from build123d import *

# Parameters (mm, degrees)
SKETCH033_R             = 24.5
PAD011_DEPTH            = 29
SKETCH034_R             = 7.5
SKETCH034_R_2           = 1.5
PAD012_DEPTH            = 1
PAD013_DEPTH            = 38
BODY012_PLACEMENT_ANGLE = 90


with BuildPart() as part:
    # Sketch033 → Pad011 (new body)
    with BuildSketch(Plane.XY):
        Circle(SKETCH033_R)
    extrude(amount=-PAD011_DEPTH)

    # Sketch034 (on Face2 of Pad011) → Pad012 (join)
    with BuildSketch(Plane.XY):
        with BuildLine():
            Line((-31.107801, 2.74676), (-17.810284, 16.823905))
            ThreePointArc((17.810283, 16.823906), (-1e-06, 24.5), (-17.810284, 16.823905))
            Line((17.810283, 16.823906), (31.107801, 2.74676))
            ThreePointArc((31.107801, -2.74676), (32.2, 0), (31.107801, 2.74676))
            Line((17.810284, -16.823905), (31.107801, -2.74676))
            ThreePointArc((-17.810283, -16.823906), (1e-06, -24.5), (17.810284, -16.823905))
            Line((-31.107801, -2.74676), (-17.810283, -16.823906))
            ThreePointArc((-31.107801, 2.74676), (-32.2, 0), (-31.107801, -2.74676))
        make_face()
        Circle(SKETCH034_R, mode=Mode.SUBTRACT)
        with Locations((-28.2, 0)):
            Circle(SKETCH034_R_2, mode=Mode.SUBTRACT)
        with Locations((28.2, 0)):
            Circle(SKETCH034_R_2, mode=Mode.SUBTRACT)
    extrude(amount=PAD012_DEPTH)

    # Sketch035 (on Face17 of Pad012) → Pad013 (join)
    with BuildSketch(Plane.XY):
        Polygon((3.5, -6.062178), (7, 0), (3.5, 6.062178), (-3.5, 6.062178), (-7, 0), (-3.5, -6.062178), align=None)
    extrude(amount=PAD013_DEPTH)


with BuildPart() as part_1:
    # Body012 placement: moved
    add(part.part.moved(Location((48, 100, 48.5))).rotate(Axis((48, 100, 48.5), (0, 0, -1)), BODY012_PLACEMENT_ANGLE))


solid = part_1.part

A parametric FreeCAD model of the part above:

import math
import FreeCAD as App
import Part
import Sketcher
from FreeCAD import Vector
Q = App.Units.Quantity

doc = App.newDocument("Part")
body = doc.addObject("PartDesign::Body", "Body")

sketch1 = doc.addObject("Sketcher::SketchObject", "Sketch")
body.addObject(sketch1)
sketch1.AttachmentSupport = (doc.XY_Plane, [""])
sketch1.MapMode = "FlatFace"
sketch1.addGeometry(Part.Circle(Vector(0, 0, 0), Vector(0, 0, 1), 24), False)
sketch1.addConstraint(Sketcher.Constraint("Coincident", 0, 3, -1, 1))
sketch1.addConstraint(Sketcher.Constraint("Diameter", 0, 49.0))
pad1 = doc.addObject("PartDesign::Pad", "Pad")
body.addObject(pad1)
pad1.Profile = sketch1
pad1.Length = 29
pad1.Reversed = True

sketch2 = doc.addObject("Sketcher::SketchObject", "Sketch001")
body.addObject(sketch2)
sketch2.AttachmentSupport = (doc.XY_Plane, [""])
sketch2.MapMode = "FlatFace"
sketch2.addGeometry(Part.LineSegment(Vector(-17.8, 16.8, 0), Vector(-31.1, 2.7, 0)), False)
sketch2.addGeometry(Part.ArcOfCircle(Part.Circle(Vector(-28.2, 0, 0), Vector(0, 0, 1), 4), math.radians(137), math.radians(223)), False)
sketch2.addGeometry(Part.LineSegment(Vector(-31.1, -2.7, 0), Vector(-17.8, -16.8, 0)), False)
sketch2.addGeometry(Part.ArcOfCircle(Part.Circle(Vector(0, 0, 0), Vector(0, 0, 1), 24.5), math.radians(-137), math.radians(-43)), False)
sketch2.addGeometry(Part.LineSegment(Vector(17.8, -16.8, 0), Vector(31.1, -2.7, 0)), False)
sketch2.addGeometry(Part.ArcOfCircle(Part.Circle(Vector(28.2, 0, 0), Vector(0, 0, 1), 4), math.radians(-43), math.radians(43)), False)
sketch2.addGeometry(Part.LineSegment(Vector(31.1, 2.7, 0), Vector(17.8, 16.8, 0)), False)
sketch2.addGeometry(Part.ArcOfCircle(Part.Circle(Vector(0, 0, 0), Vector(0, 0, 1), 24.5), math.radians(43), math.radians(137)), False)
sketch2.addGeometry(Part.Circle(Vector(28.2, 0, 0), Vector(0, 0, 1), 1.5), False)
sketch2.addGeometry(Part.Circle(Vector(0, 0, 0), Vector(0, 0, 1), 7.5), False)
sketch2.addGeometry(Part.Circle(Vector(-28.2, 0, 0), Vector(0, 0, 1), 1.5), False)
sketch2.addConstraint(Sketcher.Constraint("Tangent", 0, 2, 1, 1))
sketch2.addConstraint(Sketcher.Constraint("Tangent", 1, 2, 2, 1))
sketch2.addConstraint(Sketcher.Constraint("Tangent", 2, 2, 3, 1))
sketch2.addConstraint(Sketcher.Constraint("Tangent", 3, 2, 4, 1))
sketch2.addConstraint(Sketcher.Constraint("Tangent", 4, 2, 5, 1))
sketch2.addConstraint(Sketcher.Constraint("Tangent", 5, 2, 6, 1))
sketch2.addConstraint(Sketcher.Constraint("Tangent", 6, 2, 7, 1))
sketch2.addConstraint(Sketcher.Constraint("Tangent", 7, 2, 0, 1))
sketch2.addConstraint(Sketcher.Constraint("Coincident", 3, 3, -1, 1))
sketch2.addConstraint(Sketcher.Constraint("Coincident", 7, 3, -1, 1))
sketch2.addConstraint(Sketcher.Constraint("Coincident", 9, 3, -1, 1))
sketch2.addConstraint(Sketcher.Constraint("Coincident", 8, 3, 5, 3))
sketch2.addConstraint(Sketcher.Constraint("Coincident", 10, 3, 1, 3))
sketch2.addConstraint(Sketcher.Constraint("Equal", 1, 5))
sketch2.addConstraint(Sketcher.Constraint("Equal", 3, 7))
sketch2.addConstraint(Sketcher.Constraint("Equal", 8, 10))
sketch2.addConstraint(Sketcher.Constraint("Symmetric", 1, 3, 5, 3, -1, 1))
sketch2.addConstraint(Sketcher.Constraint("PointOnObject", 1, 3, -1))
sketch2.addConstraint(Sketcher.Constraint("Diameter", 8, 3.0))
sketch2.addConstraint(Sketcher.Constraint("Diameter", 9, 15.0))
sketch2.addConstraint(Sketcher.Constraint("Radius", 1, 3.999999))
sketch2.addConstraint(Sketcher.Constraint("Radius", 3, 24.5))
sketch2.addConstraint(Sketcher.Constraint("DistanceX", 1, 3, -1, 1, 28.200001))
pad2 = doc.addObject("PartDesign::Pad", "Pad001")
body.addObject(pad2)
pad2.Profile = sketch2
pad2.Length = 1

sketch3 = doc.addObject("Sketcher::SketchObject", "Sketch002")
body.addObject(sketch3)
sketch3.AttachmentSupport = (doc.XY_Plane, [""])
sketch3.MapMode = "FlatFace"
sketch3.addGeometry(Part.LineSegment(Vector(4, -6, 0), Vector(7, 0, 0)), False)
sketch3.addGeometry(Part.LineSegment(Vector(7, 0, 0), Vector(4, 6, 0)), False)
sketch3.addGeometry(Part.LineSegment(Vector(4, 6, 0), Vector(-4, 6, 0)), False)
sketch3.addGeometry(Part.LineSegment(Vector(-4, 6, 0), Vector(-7, 0, 0)), False)
sketch3.addGeometry(Part.LineSegment(Vector(-7, 0, 0), Vector(-4, -6, 0)), False)
sketch3.addGeometry(Part.LineSegment(Vector(-4, -6, 0), Vector(4, -6, 0)), False)
sketch3.addConstraint(Sketcher.Constraint("Coincident", 0, 2, 1, 1))
sketch3.addConstraint(Sketcher.Constraint("Coincident", 1, 2, 2, 1))
sketch3.addConstraint(Sketcher.Constraint("Coincident", 2, 2, 3, 1))
sketch3.addConstraint(Sketcher.Constraint("Coincident", 3, 2, 4, 1))
sketch3.addConstraint(Sketcher.Constraint("Coincident", 4, 2, 5, 1))
sketch3.addConstraint(Sketcher.Constraint("Coincident", 5, 2, 0, 1))
sketch3.addConstraint(Sketcher.Constraint("Horizontal", 2))
sketch3.addConstraint(Sketcher.Constraint("Horizontal", 5))
sketch3.addConstraint(Sketcher.Constraint("Symmetric", 0, 2, 3, 2, -1, 1))
sketch3.addConstraint(Sketcher.Constraint("Symmetric", 1, 2, 4, 2, -1, 1))
sketch3.addConstraint(Sketcher.Constraint("PointOnObject", 0, 2, -1))
sketch3.addConstraint(Sketcher.Constraint("Parallel", 0, 3))
sketch3.addConstraint(Sketcher.Constraint("Vertical", 2, 2, 4, 2))
sketch3.addConstraint(Sketcher.Constraint("DistanceX", 2, 2, 2, 1, 7.0))
sketch3.addConstraint(Sketcher.Constraint("Angle", 0, Q("60.000001 deg")))
sketch3.addConstraint(Sketcher.Constraint("Distance", 0, 7.0))
pad3 = doc.addObject("PartDesign::Pad", "Pad002")
body.addObject(pad3)
pad3.Profile = sketch3
pad3.Length = 38
body2 = doc.addObject("PartDesign::Body", "Body001")
doc.recompute()

body.Placement = App.Placement(Vector(48, 100, 48.5), App.Rotation(Vector(0, 0, -1), 90))
boolean = doc.addObject("PartDesign::Boolean", "Boolean")
body2.addObject(boolean)
boolean.Type = "Fuse"
boolean.addObjects([body])

doc.recompute()
